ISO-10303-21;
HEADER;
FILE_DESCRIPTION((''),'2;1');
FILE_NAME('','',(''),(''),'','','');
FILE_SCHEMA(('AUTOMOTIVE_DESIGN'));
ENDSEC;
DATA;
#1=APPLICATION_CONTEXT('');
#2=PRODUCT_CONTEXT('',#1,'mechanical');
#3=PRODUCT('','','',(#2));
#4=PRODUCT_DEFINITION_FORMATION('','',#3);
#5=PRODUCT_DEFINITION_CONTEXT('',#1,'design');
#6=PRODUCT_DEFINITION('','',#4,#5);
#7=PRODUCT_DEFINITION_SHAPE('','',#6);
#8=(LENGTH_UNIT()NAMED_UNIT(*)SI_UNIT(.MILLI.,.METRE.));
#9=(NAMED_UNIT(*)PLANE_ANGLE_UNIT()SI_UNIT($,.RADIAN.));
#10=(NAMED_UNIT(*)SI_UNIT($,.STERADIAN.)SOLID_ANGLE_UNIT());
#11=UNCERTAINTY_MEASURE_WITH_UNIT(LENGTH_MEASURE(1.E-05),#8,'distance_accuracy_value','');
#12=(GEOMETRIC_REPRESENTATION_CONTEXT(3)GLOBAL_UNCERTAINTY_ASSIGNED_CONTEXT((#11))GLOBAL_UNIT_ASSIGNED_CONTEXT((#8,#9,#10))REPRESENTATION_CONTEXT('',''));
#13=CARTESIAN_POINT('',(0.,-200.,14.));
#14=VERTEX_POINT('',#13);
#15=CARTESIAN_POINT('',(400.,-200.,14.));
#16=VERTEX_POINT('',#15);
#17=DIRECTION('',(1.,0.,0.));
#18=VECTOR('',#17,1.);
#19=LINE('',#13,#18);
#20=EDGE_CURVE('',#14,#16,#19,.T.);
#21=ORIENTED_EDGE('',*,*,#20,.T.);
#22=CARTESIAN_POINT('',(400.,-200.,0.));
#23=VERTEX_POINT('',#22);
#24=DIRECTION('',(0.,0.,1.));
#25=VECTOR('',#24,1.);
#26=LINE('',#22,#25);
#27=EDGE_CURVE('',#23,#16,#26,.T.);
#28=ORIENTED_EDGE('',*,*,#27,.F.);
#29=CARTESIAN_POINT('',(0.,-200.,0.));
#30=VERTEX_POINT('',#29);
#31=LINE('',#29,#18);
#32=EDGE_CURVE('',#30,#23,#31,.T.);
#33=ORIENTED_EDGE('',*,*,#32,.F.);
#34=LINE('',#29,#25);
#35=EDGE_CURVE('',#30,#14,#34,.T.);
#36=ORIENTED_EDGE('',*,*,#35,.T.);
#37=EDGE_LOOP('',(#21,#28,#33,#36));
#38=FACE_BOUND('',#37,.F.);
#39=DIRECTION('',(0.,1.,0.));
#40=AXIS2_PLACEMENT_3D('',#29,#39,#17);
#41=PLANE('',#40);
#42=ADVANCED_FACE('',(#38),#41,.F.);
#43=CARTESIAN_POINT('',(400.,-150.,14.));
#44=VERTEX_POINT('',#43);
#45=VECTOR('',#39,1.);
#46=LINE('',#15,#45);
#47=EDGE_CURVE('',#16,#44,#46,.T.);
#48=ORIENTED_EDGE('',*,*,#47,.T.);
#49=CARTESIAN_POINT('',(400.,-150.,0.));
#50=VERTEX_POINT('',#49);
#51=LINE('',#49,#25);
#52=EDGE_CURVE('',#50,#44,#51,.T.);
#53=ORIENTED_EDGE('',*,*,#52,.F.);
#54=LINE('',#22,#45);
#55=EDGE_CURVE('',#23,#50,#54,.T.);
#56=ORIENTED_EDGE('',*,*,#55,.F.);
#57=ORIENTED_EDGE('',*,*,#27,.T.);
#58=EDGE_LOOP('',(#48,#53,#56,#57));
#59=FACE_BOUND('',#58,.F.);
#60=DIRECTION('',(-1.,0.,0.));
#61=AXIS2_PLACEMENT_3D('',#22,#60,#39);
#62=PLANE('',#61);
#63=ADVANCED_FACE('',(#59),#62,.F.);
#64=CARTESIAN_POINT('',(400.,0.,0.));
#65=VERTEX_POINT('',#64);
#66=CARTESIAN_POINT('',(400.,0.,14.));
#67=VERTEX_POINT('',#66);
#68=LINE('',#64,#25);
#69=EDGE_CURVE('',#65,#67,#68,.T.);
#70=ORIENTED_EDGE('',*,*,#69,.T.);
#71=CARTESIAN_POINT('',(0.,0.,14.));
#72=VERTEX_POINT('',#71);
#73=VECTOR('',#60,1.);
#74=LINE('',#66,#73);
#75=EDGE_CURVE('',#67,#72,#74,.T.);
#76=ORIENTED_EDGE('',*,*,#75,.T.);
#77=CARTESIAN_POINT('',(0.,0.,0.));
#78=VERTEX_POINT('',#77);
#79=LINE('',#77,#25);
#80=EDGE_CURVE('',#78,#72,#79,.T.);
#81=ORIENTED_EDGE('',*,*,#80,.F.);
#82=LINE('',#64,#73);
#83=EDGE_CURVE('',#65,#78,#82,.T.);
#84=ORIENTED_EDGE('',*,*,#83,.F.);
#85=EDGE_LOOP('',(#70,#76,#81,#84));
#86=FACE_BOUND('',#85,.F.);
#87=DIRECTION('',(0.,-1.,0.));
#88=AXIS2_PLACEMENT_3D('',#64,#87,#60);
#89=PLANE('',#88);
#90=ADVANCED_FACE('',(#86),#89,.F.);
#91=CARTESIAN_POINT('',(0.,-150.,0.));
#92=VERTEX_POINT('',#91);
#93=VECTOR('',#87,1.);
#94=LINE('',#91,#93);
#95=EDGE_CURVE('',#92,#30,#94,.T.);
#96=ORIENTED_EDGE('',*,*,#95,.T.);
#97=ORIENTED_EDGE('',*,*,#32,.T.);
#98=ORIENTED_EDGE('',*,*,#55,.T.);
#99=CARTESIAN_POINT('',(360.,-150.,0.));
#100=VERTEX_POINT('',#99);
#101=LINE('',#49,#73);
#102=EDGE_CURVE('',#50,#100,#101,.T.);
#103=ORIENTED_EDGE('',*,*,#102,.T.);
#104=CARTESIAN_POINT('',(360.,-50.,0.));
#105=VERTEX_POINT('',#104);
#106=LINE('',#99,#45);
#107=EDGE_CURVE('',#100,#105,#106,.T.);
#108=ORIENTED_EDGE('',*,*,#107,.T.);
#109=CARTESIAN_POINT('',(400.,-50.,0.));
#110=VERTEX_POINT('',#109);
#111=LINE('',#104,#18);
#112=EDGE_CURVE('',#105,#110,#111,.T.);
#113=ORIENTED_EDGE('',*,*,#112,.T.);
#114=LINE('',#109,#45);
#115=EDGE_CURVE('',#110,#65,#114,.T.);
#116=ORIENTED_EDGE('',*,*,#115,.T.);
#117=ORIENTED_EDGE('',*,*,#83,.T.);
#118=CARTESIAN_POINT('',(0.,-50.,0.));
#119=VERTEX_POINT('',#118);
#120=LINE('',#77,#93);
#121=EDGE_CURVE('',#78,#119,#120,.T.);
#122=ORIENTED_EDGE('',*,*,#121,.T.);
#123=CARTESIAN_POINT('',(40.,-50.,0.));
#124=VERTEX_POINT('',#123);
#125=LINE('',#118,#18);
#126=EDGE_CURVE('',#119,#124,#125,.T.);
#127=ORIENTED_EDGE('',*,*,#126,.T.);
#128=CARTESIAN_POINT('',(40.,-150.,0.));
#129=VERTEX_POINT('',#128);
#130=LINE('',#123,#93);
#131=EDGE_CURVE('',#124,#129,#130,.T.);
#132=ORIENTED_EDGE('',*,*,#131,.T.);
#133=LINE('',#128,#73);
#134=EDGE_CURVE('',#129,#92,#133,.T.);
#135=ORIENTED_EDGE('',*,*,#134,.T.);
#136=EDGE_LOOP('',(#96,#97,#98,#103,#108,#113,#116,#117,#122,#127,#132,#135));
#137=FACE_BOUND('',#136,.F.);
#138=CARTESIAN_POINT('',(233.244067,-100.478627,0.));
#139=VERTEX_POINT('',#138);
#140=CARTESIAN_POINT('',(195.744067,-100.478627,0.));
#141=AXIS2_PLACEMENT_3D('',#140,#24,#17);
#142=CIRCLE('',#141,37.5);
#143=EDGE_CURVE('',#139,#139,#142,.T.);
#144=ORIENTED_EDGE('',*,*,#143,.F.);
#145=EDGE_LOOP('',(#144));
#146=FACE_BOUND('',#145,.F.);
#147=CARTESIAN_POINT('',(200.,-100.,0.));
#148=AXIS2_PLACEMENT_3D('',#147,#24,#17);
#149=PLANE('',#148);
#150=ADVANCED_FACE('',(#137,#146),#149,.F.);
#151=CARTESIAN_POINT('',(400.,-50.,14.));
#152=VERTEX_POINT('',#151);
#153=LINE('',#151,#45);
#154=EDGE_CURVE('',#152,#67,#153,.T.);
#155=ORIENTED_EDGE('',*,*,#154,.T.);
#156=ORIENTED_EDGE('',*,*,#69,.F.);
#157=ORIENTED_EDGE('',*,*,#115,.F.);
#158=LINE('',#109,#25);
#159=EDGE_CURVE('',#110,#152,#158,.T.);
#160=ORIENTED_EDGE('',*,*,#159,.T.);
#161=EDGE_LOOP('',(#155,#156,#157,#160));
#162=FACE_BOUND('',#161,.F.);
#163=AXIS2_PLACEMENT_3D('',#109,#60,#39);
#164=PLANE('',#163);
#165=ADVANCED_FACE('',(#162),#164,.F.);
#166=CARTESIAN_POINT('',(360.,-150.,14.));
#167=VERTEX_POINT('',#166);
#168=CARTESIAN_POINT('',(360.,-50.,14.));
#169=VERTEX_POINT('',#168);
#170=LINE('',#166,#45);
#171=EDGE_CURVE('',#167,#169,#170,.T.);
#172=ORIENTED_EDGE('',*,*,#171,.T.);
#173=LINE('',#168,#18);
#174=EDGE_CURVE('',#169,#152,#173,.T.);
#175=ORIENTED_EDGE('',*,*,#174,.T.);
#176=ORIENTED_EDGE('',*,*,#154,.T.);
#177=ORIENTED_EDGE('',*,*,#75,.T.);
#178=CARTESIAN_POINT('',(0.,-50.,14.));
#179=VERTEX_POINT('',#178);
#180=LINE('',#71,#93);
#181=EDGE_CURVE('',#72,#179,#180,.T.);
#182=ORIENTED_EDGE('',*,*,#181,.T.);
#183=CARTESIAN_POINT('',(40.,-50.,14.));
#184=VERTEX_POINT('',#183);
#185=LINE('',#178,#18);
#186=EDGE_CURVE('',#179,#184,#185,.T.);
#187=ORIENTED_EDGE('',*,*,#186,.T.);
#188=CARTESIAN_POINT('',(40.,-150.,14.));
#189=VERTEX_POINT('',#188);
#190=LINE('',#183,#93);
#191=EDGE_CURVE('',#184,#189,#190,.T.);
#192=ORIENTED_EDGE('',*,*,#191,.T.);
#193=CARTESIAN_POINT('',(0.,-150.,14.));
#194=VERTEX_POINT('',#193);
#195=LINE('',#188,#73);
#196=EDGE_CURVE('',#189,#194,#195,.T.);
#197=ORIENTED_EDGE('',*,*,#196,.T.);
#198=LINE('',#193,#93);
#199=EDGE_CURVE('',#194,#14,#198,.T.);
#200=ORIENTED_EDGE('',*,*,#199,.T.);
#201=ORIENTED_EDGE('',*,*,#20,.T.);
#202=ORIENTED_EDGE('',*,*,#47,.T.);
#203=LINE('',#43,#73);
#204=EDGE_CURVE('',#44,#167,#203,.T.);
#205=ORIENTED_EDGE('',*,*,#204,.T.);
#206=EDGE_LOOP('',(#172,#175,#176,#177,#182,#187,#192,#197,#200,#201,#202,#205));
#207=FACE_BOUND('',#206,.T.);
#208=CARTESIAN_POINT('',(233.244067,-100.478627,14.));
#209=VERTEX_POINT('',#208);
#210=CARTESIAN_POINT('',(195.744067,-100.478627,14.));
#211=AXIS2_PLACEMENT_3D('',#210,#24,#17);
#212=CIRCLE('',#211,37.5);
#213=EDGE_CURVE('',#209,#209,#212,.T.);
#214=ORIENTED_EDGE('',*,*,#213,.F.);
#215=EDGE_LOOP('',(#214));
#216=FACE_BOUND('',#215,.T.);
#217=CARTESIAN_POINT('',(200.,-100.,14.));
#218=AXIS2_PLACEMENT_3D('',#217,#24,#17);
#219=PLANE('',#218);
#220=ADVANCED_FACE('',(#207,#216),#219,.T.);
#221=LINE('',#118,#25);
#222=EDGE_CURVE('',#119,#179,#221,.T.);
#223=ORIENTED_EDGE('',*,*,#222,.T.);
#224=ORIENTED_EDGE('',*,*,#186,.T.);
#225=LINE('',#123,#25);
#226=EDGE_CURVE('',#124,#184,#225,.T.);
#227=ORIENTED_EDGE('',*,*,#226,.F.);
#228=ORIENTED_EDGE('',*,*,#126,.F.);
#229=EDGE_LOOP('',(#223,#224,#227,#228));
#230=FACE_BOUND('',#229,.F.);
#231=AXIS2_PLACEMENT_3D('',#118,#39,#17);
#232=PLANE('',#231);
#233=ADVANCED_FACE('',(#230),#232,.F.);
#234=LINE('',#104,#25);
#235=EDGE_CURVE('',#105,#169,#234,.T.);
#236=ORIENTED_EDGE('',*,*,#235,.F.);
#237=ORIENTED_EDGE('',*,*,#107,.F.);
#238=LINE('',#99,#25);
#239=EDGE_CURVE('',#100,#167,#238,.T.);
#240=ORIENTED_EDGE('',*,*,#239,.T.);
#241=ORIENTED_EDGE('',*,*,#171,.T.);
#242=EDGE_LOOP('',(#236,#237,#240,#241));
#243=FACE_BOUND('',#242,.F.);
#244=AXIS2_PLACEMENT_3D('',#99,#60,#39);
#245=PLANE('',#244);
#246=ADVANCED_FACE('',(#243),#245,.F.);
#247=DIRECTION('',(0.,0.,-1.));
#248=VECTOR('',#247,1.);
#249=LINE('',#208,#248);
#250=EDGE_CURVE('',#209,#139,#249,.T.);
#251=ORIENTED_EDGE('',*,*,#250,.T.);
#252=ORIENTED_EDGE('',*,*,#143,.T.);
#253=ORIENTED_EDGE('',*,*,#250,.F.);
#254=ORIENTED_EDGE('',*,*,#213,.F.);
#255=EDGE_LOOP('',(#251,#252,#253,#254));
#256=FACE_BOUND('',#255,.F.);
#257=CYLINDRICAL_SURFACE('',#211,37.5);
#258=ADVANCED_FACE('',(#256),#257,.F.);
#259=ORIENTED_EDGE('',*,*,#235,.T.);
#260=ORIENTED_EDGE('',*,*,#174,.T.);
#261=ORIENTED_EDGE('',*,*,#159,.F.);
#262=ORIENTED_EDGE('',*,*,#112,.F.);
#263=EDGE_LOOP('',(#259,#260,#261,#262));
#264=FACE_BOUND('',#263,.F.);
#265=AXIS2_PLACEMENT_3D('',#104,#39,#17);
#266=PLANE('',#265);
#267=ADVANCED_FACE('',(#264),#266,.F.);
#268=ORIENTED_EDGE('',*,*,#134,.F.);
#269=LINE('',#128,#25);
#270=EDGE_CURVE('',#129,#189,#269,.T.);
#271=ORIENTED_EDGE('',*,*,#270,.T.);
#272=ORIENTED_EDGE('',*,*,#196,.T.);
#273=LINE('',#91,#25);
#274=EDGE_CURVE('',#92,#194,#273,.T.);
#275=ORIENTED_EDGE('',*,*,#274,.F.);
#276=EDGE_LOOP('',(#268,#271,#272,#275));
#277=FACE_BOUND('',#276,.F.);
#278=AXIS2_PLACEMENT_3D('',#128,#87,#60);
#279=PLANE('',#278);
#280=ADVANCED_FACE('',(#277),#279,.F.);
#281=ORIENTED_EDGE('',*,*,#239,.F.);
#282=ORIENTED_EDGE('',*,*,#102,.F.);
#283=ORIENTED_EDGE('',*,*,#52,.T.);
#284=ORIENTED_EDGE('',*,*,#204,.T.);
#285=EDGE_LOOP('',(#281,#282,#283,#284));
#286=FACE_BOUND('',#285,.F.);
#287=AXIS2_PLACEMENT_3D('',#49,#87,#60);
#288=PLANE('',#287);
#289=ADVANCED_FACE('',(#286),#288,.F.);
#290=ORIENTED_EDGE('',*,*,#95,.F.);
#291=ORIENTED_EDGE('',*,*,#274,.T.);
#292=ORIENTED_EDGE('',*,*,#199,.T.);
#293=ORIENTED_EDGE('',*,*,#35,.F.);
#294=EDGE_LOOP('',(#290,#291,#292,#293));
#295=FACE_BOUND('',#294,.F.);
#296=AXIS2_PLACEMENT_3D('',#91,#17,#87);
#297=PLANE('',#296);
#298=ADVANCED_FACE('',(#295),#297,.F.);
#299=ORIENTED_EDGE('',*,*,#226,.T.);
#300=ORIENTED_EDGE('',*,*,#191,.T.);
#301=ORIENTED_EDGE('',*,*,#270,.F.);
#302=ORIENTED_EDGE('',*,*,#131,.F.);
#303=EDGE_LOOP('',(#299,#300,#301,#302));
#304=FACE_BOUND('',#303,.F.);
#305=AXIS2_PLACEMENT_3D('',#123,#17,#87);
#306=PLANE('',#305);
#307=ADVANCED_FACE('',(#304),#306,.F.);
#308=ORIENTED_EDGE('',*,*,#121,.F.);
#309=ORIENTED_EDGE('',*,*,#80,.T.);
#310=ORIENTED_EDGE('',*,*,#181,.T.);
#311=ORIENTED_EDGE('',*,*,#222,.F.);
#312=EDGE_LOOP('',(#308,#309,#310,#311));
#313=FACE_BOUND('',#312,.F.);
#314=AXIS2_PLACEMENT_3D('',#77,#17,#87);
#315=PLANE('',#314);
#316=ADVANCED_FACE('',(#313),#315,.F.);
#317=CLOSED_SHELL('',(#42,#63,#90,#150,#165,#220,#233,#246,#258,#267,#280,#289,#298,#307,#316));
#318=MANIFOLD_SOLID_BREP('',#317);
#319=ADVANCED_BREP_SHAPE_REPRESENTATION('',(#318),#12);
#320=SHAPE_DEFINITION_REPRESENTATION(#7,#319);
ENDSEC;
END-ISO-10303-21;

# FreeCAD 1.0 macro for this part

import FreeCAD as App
import Part
import Sketcher
Q = App.Units.Quantity


def add_polygon(sketch, points):
    """Adds a closed chain of lines whose ends are joined by coincident constraints."""
    first, n = sketch.GeometryCount, len(points)
    for a, b in zip(points, points[1:] + points[:1]):
        sketch.addGeometry(Part.LineSegment(App.Vector(*a, 0), App.Vector(*b, 0)), False)
    for i in range(n):
        sketch.addConstraint(Sketcher.Constraint("Coincident", first + i, 2, first + (i + 1) % n, 1))

doc = App.newDocument("Part")
body = doc.addObject("PartDesign::Body", "Body")

sketch1 = body.newObject("Sketcher::SketchObject", "Sketch")
sketch1.AttachmentSupport = (doc.getObject("XY_Plane"), [""])
sketch1.MapMode = "FlatFace"
add_polygon(sketch1, [(400, 0), (0, 0), (0, -50), (40, -50), (40, -150), (0, -150), (0, -200), (400, -200), (400, -150), (360, -150), (360, -50), (400, -50)])
sketch1.addConstraint(Sketcher.Constraint("Horizontal", 0))
sketch1.addConstraint(Sketcher.Constraint("Vertical", 1))
sketch1.addConstraint(Sketcher.Constraint("Horizontal", 2))
sketch1.addConstraint(Sketcher.Constraint("Vertical", 3))
sketch1.addConstraint(Sketcher.Constraint("Horizontal", 4))
sketch1.addConstraint(Sketcher.Constraint("Vertical", 5))
sketch1.addConstraint(Sketcher.Constraint("Horizontal", 6))
sketch1.addConstraint(Sketcher.Constraint("Vertical", 7))
sketch1.addConstraint(Sketcher.Constraint("Horizontal", 8))
sketch1.addConstraint(Sketcher.Constraint("Vertical", 9))
sketch1.addConstraint(Sketcher.Constraint("Horizontal", 10))
sketch1.addConstraint(Sketcher.Constraint("Vertical", 11))
sketch1.addConstraint(Sketcher.Constraint("Coincident", 0, 2, -1, 1))
sketch1.addConstraint(Sketcher.Constraint("PointOnObject", 4, 2, -2))
sketch1.addConstraint(Sketcher.Constraint("Horizontal", 4, 2, 7, 2))
sketch1.addConstraint(Sketcher.Constraint("Horizontal", 2, 2, 9, 2))
sketch1.addConstraint(Sketcher.Constraint("Vertical", 7, 2, 10, 2))
sketch1.addConstraint(Sketcher.Constraint("Equal", 4, 8))
sketch1.addConstraint(Sketcher.Constraint("Equal", 1, 5))
sketch1.addConstraint(Sketcher.Constraint("DistanceX", 0, 2, 0, 1, Q("400 mm")))
sketch1.addConstraint(Sketcher.Constraint("DistanceX", 2, 1, 2, 2, Q("40 mm")))
sketch1.addConstraint(Sketcher.Constraint("DistanceY", 1, 2, 1, 1, Q("50 mm")))
sketch1.addConstraint(Sketcher.Constraint("DistanceY", 3, 2, 3, 1, Q("100 mm")))
pad1 = body.newObject("PartDesign::Pad", "Pad")
pad1.Profile = sketch1
pad1.Length = 14

sketch2 = body.newObject("Sketcher::SketchObject", "Sketch001")
sketch2.AttachmentSupport = (doc.getObject("XY_Plane"), [""])
sketch2.MapMode = "FlatFace"
sketch2.AttachmentOffset = App.Placement(App.Vector(0, 0, 14), App.Rotation())
sketch2.addGeometry(Part.Circle(App.Vector(195.744067, -100.478627, 0), App.Vector(0, 0, 1), 37.5), False)
sketch2.addConstraint(Sketcher.Constraint("Diameter", 0, Q("75 mm")))
sketch2.addConstraint(Sketcher.Constraint("DistanceX", -1, 1, 0, 3, Q("195.744067 mm")))
sketch2.addConstraint(Sketcher.Constraint("DistanceY", 0, 3, -1, 1, Q("100.478627 mm")))
pocket1 = body.newObject("PartDesign::Pocket", "Pocket")
pocket1.Profile = sketch2
pocket1.Length = 14

doc.recompute()
